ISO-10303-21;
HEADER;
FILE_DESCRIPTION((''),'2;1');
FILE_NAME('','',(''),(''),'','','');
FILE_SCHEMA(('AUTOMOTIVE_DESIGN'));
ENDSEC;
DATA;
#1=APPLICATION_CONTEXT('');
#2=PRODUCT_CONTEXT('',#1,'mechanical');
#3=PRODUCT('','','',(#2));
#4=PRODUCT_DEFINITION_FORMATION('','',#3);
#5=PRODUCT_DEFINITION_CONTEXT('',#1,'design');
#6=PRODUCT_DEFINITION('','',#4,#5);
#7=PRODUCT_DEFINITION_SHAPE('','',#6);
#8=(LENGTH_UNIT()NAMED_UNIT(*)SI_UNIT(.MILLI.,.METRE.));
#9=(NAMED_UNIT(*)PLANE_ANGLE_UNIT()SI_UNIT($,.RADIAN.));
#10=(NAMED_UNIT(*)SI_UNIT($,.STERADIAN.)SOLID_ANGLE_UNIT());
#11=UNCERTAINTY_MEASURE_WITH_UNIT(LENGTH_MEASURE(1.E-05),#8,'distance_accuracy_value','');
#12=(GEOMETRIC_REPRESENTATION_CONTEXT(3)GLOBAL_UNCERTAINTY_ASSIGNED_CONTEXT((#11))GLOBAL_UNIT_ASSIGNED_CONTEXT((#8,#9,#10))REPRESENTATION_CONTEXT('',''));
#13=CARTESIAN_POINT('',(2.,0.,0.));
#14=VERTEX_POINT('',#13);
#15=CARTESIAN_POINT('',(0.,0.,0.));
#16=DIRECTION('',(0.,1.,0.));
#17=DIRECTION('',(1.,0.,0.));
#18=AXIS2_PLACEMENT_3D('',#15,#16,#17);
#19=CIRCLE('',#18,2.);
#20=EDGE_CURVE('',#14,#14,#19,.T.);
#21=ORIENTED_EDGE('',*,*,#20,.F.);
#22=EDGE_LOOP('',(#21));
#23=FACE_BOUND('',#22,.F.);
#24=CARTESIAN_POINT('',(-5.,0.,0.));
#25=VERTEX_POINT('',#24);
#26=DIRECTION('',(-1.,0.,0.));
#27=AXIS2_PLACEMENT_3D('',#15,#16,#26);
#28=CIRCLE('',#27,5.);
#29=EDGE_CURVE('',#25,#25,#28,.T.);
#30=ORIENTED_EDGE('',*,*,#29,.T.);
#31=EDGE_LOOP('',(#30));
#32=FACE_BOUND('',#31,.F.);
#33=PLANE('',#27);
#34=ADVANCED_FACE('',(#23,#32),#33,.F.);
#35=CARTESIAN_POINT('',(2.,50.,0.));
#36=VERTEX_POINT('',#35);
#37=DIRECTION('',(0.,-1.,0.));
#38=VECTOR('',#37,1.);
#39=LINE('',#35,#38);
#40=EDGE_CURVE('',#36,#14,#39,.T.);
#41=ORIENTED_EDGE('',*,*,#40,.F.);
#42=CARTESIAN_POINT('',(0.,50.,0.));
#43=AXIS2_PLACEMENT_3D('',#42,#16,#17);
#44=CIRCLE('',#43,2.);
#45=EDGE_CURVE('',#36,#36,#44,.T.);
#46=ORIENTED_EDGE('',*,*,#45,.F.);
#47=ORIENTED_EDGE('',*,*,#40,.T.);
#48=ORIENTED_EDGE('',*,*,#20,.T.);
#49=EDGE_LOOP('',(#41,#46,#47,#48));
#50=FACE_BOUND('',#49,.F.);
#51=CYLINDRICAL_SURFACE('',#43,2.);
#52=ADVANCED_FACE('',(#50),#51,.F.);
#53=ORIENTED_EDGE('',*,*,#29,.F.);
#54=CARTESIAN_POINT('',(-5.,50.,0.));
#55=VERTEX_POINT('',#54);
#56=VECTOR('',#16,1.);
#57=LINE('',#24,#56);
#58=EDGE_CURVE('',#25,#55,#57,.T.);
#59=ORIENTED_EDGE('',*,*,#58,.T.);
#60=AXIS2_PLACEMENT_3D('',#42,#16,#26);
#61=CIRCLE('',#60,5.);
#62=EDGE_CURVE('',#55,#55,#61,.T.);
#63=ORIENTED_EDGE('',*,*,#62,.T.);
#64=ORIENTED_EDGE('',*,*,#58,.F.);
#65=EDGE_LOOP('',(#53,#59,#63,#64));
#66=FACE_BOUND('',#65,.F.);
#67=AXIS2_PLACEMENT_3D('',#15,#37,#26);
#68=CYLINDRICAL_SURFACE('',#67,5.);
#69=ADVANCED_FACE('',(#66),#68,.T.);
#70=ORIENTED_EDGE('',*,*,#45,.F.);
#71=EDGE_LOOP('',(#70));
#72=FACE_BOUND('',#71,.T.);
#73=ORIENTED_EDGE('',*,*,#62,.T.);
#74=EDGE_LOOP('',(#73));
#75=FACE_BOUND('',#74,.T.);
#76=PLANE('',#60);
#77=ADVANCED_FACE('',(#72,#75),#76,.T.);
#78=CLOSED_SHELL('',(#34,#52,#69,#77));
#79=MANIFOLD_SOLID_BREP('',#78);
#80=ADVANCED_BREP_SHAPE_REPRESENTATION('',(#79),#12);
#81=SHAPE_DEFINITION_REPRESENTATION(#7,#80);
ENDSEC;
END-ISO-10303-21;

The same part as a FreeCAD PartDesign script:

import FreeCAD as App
import Part
import Sketcher
from FreeCAD import Vector

doc = App.newDocument("Part")
body = doc.addObject("PartDesign::Body", "Body")

sketch1 = doc.addObject("Sketcher::SketchObject", "Sketch")
body.addObject(sketch1)
sketch1.AttachmentSupport = (doc.XZ_Plane, [""])
sketch1.MapMode = "FlatFace"
sketch1.addGeometry(Part.Circle(Vector(0, 0, 0), Vector(0, 0, 1), 5), False)
sketch1.addConstraint([
    Sketcher.Constraint("Coincident", 0, 3, -1, 1),
    Sketcher.Constraint("Diameter", 0, 10.0),
])
pad1 = doc.addObject("PartDesign::Pad", "Pad")
body.addObject(pad1)
pad1.Profile = sketch1
pad1.Length = 50
pad1.Reversed = True

sketch2 = doc.addObject("Sketcher::SketchObject", "Sketch001")
body.addObject(sketch2)
sketch2.AttachmentSupport = (doc.XZ_Plane, [""])
sketch2.MapMode = "FlatFace"
sketch2.AttachmentOffset = App.Placement(Vector(0, 0, -50), App.Rotation())
sketch2.addGeometry(Part.Circle(Vector(0, 0, 0), Vector(0, 0, 1), 2), False)
sketch2.addConstraint([
    Sketcher.Constraint("Coincident", 0, 3, -1, 1),
    Sketcher.Constraint("Diameter", 0, 4.0),
])
pocket1 = doc.addObject("PartDesign::Pocket", "Pocket")
body.addObject(pocket1)
pocket1.Profile = sketch2
pocket1.Type = "ThroughAll"
pocket1.Reversed = True

doc.recompute()
